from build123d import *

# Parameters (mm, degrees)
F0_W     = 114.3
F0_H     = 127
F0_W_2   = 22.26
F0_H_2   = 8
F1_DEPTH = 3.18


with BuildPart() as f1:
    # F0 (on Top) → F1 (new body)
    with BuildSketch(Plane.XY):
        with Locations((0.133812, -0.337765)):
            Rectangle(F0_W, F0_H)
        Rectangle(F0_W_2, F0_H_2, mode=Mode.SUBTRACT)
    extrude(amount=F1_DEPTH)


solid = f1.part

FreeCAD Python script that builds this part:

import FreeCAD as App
import Part
import Sketcher
Q = App.Units.Quantity

doc = App.newDocument("Part")
body = doc.addObject("PartDesign::Body", "Body")

# Sketch on XY plane
sketch1 = body.newObject("Sketcher::SketchObject", "Sketch")
sketch1.AttachmentSupport = (doc.getObject("XY_Plane"), [""])
sketch1.MapMode = "FlatFace"
sketch1.addGeometry([
    Part.LineSegment(App.Vector(-57, 63, 0), App.Vector(-57, -64, 0)),  # 0
    Part.LineSegment(App.Vector(-57, -64, 0), App.Vector(57, -64, 0)),  # 1
    Part.LineSegment(App.Vector(57, -64, 0), App.Vector(57, 63, 0)),  # 2
    Part.LineSegment(App.Vector(57, 63, 0), App.Vector(-57, 63, 0)),  # 3
    Part.LineSegment(App.Vector(11, -4, 0), App.Vector(-11, -4, 0)),  # 4
    Part.LineSegment(App.Vector(-11, -4, 0), App.Vector(-11, 4, 0)),  # 5
    Part.LineSegment(App.Vector(-11, 4, 0), App.Vector(11, 4, 0)),  # 6
    Part.LineSegment(App.Vector(11, 4, 0), App.Vector(11, -4, 0)),  # 7
], False)
sketch1.addConstraint([
    Sketcher.Constraint("Coincident", 0, 2, 1, 1),
    Sketcher.Constraint("Coincident", 1, 2, 2, 1),
    Sketcher.Constraint("Coincident", 2, 2, 3, 1),
    Sketcher.Constraint("Coincident", 3, 2, 0, 1),
    Sketcher.Constraint("Coincident", 4, 2, 5, 1),
    Sketcher.Constraint("Coincident", 5, 2, 6, 1),
    Sketcher.Constraint("Coincident", 6, 2, 7, 1),
    Sketcher.Constraint("Coincident", 7, 2, 4, 1),
    Sketcher.Constraint("Vertical", 0),
    Sketcher.Constraint("Horizontal", 1),
    Sketcher.Constraint("Vertical", 2),
    Sketcher.Constraint("Horizontal", 3),
    Sketcher.Constraint("Horizontal", 4),
    Sketcher.Constraint("Vertical", 5),
    Sketcher.Constraint("Horizontal", 6),
    Sketcher.Constraint("Vertical", 7),
    Sketcher.Constraint("Symmetric", 4, 2, 6, 2, -1, 1),
    Sketcher.Constraint("DistanceY", 0, 2, 0, 1, Q("5 in")),
    Sketcher.Constraint("DistanceX", 1, 1, 1, 2, Q("4.5 in")),
    Sketcher.Constraint("DistanceX", 4, 2, 4, 1, 22.26),
    Sketcher.Constraint("DistanceY", 5, 1, 5, 2, 8.0),
    Sketcher.Constraint("DistanceX", -1, 1, 1, 2, 57.283812),
    Sketcher.Constraint("DistanceY", 0, 2, -1, 1, 63.837765),
])
pad1 = body.newObject("PartDesign::Pad", "Pad")
pad1.Profile = sketch1
pad1.Length = 3.18

doc.recompute()
